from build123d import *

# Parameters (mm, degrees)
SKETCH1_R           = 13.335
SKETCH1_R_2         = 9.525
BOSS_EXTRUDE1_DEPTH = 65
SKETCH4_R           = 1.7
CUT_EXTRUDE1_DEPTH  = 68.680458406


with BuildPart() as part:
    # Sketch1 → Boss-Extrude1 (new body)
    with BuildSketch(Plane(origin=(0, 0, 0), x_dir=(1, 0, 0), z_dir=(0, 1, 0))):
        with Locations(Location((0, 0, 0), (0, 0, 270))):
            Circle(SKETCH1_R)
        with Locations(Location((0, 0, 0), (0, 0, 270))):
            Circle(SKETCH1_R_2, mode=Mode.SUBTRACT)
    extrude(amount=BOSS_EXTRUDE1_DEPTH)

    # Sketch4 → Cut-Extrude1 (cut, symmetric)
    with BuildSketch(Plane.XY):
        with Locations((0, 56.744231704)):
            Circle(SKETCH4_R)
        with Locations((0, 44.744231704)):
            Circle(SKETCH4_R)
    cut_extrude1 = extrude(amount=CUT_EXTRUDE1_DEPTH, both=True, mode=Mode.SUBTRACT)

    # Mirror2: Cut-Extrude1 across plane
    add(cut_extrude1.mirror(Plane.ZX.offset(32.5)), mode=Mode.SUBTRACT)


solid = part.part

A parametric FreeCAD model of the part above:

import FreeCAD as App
import Part
import Sketcher

doc = App.newDocument("Part")
body = doc.addObject("PartDesign::Body", "Body")

sketch1 = body.newObject("Sketcher::SketchObject", "Sketch")
sketch1.AttachmentSupport = (doc.getObject("XZ_Plane"), [""])
sketch1.MapMode = "FlatFace"
sketch1.addGeometry(Part.Circle(App.Vector(0, 0, 0), App.Vector(0, 0, 1), 13.335), False)
sketch1.addGeometry(Part.Circle(App.Vector(0, 0, 0), App.Vector(0, 0, 1), 9.525), False)
sketch1.addConstraint(Sketcher.Constraint("Coincident", 0, 3, -1, 1))
sketch1.addConstraint(Sketcher.Constraint("Coincident", 1, 3, -1, 1))
sketch1.addConstraint(Sketcher.Constraint("Diameter", 0, 26.67))
sketch1.addConstraint(Sketcher.Constraint("Diameter", 1, 19.05))
pad1 = body.newObject("PartDesign::Pad", "Pad")
pad1.Profile = sketch1
pad1.Length = 65
pad1.Reversed = True

sketch2 = body.newObject("Sketcher::SketchObject", "Sketch001")
sketch2.AttachmentSupport = (doc.getObject("XY_Plane"), [""])
sketch2.MapMode = "FlatFace"
sketch2.addGeometry(Part.Circle(App.Vector(0, 56.744232, 0), App.Vector(0, 0, 1), 1.7), False)
sketch2.addGeometry(Part.Circle(App.Vector(0, 44.744232, 0), App.Vector(0, 0, 1), 1.7), False)
sketch2.addConstraint(Sketcher.Constraint("Equal", 0, 1))
sketch2.addConstraint(Sketcher.Constraint("PointOnObject", 0, 3, -2))
sketch2.addConstraint(Sketcher.Constraint("PointOnObject", 1, 3, -2))
sketch2.addConstraint(Sketcher.Constraint("Diameter", 0, 3.4))
sketch2.addConstraint(Sketcher.Constraint("DistanceY", 1, 3, 0, 3, 12.0))
sketch2.addConstraint(Sketcher.Constraint("DistanceY", -1, 1, 0, 3, 56.744232))
pocket1 = body.newObject("PartDesign::Pocket", "Pocket")
pocket1.Profile = sketch2
pocket1.Length = 137.360917
pocket1.Midplane = True
doc.recompute()

datumplane = body.newObject("PartDesign::Plane", "DatumPlane")
datumplane.AttachmentSupport = (doc.getObject("XZ_Plane"), [""])
datumplane.MapMode = "FlatFace"
datumplane.AttachmentOffset = App.Placement(App.Vector(0, 0, -32.5), App.Rotation())
mirrored = body.newObject("PartDesign::Mirrored", "Mirrored")
mirrored.Originals = [pocket1]
mirrored.MirrorPlane = (datumplane, [""])
body.Tip = mirrored

doc.recompute()
